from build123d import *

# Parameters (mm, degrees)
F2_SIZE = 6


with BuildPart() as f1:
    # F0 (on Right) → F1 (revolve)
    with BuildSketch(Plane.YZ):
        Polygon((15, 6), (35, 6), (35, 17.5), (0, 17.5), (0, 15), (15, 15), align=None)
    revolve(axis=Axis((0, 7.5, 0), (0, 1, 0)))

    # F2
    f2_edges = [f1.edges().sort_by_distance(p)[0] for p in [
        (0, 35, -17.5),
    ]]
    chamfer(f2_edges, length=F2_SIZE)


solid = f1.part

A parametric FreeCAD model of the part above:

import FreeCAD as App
import Part
import Sketcher

V = App.Vector
Q = App.Units.Quantity


def edges_at(feature, points):
    """Names of the edges that pass closest to the given points."""
    edges = feature.Shape.Edges
    near = lambda p: min(range(len(edges)), key=lambda i: edges[i].distToShape(Part.Vertex(*p))[0])
    return sorted({f"Edge{near(p) + 1}" for p in points})

doc = App.newDocument("Part")
params = doc.addObject("Spreadsheet::Sheet", "Params")
for row, (alias, value) in enumerate([
    ("sketch1_width", "20 mm"),
    ("sketch1_width2", "35 mm"),
    ("sketch1_height", "9 mm"),
    ("sketch1_height2", "11.5 mm"),
    ("revolution_angle", "360 deg"),
    ("chamfer_size", "6 mm"),
], start=1):
    params.set(f"A{row}", alias)
    params.set(f"B{row}", "=" + value)
    params.setAlias(f"B{row}", alias)

body = doc.addObject("PartDesign::Body", "Body")

# Sketch on YZ plane
sketch1 = body.newObject("Sketcher::SketchObject", "Sketch")
sketch1.AttachmentSupport = (doc.getObject("YZ_Plane"), [""])
sketch1.MapMode = "FlatFace"
sketch1.addGeometry([
    Part.LineSegment(V(15, 6, 0), V(35, 6, 0)),  # 0
    Part.LineSegment(V(35, 6, 0), V(35, 17.5, 0)),  # 1
    Part.LineSegment(V(35, 17.5, 0), V(0, 17.5, 0)),  # 2
    Part.LineSegment(V(0, 17.5, 0), V(0, 15, 0)),  # 3
    Part.LineSegment(V(0, 15, 0), V(15, 15, 0)),  # 4
    Part.LineSegment(V(15, 15, 0), V(15, 6, 0)),  # 5
], False)
sketch1.addConstraint([
    Sketcher.Constraint("Coincident", 0, 2, 1, 1),
    Sketcher.Constraint("Coincident", 1, 2, 2, 1),
    Sketcher.Constraint("Coincident", 2, 2, 3, 1),
    Sketcher.Constraint("Coincident", 3, 2, 4, 1),
    Sketcher.Constraint("Coincident", 4, 2, 5, 1),
    Sketcher.Constraint("Coincident", 5, 2, 0, 1),
    Sketcher.Constraint("Horizontal", 0),
    Sketcher.Constraint("Vertical", 1),
    Sketcher.Constraint("Horizontal", 2),
    Sketcher.Constraint("Vertical", 3),
    Sketcher.Constraint("Horizontal", 4),
    Sketcher.Constraint("Vertical", 5),
    Sketcher.Constraint("PointOnObject", 2, 2, -2),
    Sketcher.Constraint("DistanceX", 0, 1, 0, 2, Q("20 mm")),
    Sketcher.Constraint("DistanceX", 2, 2, 2, 1, Q("35 mm")),
    Sketcher.Constraint("DistanceY", 5, 2, 5, 1, Q("9 mm")),
    Sketcher.Constraint("DistanceY", 1, 1, 1, 2, Q("11.5 mm")),
    Sketcher.Constraint("DistanceY", -1, 1, 0, 2, Q("6 mm")),
])
sketch1.setExpression("Constraints[13]", "Params.sketch1_width")
sketch1.setExpression("Constraints[14]", "Params.sketch1_width2")
sketch1.setExpression("Constraints[15]", "Params.sketch1_height")
sketch1.setExpression("Constraints[16]", "Params.sketch1_height2")
revolution = body.newObject("PartDesign::Revolution", "Revolution")
revolution.Profile = sketch1
revolution.ReferenceAxis = (sketch1, ["H_Axis"])
revolution.setExpression("Angle", "Params.revolution_angle")
doc.recompute()

chamfer = body.newObject("PartDesign::Chamfer", "Chamfer")
chamfer.Base = (revolution, edges_at(revolution, [(0, 35, -17.5)]))
chamfer.setExpression("Size", "Params.chamfer_size")

doc.recompute()
